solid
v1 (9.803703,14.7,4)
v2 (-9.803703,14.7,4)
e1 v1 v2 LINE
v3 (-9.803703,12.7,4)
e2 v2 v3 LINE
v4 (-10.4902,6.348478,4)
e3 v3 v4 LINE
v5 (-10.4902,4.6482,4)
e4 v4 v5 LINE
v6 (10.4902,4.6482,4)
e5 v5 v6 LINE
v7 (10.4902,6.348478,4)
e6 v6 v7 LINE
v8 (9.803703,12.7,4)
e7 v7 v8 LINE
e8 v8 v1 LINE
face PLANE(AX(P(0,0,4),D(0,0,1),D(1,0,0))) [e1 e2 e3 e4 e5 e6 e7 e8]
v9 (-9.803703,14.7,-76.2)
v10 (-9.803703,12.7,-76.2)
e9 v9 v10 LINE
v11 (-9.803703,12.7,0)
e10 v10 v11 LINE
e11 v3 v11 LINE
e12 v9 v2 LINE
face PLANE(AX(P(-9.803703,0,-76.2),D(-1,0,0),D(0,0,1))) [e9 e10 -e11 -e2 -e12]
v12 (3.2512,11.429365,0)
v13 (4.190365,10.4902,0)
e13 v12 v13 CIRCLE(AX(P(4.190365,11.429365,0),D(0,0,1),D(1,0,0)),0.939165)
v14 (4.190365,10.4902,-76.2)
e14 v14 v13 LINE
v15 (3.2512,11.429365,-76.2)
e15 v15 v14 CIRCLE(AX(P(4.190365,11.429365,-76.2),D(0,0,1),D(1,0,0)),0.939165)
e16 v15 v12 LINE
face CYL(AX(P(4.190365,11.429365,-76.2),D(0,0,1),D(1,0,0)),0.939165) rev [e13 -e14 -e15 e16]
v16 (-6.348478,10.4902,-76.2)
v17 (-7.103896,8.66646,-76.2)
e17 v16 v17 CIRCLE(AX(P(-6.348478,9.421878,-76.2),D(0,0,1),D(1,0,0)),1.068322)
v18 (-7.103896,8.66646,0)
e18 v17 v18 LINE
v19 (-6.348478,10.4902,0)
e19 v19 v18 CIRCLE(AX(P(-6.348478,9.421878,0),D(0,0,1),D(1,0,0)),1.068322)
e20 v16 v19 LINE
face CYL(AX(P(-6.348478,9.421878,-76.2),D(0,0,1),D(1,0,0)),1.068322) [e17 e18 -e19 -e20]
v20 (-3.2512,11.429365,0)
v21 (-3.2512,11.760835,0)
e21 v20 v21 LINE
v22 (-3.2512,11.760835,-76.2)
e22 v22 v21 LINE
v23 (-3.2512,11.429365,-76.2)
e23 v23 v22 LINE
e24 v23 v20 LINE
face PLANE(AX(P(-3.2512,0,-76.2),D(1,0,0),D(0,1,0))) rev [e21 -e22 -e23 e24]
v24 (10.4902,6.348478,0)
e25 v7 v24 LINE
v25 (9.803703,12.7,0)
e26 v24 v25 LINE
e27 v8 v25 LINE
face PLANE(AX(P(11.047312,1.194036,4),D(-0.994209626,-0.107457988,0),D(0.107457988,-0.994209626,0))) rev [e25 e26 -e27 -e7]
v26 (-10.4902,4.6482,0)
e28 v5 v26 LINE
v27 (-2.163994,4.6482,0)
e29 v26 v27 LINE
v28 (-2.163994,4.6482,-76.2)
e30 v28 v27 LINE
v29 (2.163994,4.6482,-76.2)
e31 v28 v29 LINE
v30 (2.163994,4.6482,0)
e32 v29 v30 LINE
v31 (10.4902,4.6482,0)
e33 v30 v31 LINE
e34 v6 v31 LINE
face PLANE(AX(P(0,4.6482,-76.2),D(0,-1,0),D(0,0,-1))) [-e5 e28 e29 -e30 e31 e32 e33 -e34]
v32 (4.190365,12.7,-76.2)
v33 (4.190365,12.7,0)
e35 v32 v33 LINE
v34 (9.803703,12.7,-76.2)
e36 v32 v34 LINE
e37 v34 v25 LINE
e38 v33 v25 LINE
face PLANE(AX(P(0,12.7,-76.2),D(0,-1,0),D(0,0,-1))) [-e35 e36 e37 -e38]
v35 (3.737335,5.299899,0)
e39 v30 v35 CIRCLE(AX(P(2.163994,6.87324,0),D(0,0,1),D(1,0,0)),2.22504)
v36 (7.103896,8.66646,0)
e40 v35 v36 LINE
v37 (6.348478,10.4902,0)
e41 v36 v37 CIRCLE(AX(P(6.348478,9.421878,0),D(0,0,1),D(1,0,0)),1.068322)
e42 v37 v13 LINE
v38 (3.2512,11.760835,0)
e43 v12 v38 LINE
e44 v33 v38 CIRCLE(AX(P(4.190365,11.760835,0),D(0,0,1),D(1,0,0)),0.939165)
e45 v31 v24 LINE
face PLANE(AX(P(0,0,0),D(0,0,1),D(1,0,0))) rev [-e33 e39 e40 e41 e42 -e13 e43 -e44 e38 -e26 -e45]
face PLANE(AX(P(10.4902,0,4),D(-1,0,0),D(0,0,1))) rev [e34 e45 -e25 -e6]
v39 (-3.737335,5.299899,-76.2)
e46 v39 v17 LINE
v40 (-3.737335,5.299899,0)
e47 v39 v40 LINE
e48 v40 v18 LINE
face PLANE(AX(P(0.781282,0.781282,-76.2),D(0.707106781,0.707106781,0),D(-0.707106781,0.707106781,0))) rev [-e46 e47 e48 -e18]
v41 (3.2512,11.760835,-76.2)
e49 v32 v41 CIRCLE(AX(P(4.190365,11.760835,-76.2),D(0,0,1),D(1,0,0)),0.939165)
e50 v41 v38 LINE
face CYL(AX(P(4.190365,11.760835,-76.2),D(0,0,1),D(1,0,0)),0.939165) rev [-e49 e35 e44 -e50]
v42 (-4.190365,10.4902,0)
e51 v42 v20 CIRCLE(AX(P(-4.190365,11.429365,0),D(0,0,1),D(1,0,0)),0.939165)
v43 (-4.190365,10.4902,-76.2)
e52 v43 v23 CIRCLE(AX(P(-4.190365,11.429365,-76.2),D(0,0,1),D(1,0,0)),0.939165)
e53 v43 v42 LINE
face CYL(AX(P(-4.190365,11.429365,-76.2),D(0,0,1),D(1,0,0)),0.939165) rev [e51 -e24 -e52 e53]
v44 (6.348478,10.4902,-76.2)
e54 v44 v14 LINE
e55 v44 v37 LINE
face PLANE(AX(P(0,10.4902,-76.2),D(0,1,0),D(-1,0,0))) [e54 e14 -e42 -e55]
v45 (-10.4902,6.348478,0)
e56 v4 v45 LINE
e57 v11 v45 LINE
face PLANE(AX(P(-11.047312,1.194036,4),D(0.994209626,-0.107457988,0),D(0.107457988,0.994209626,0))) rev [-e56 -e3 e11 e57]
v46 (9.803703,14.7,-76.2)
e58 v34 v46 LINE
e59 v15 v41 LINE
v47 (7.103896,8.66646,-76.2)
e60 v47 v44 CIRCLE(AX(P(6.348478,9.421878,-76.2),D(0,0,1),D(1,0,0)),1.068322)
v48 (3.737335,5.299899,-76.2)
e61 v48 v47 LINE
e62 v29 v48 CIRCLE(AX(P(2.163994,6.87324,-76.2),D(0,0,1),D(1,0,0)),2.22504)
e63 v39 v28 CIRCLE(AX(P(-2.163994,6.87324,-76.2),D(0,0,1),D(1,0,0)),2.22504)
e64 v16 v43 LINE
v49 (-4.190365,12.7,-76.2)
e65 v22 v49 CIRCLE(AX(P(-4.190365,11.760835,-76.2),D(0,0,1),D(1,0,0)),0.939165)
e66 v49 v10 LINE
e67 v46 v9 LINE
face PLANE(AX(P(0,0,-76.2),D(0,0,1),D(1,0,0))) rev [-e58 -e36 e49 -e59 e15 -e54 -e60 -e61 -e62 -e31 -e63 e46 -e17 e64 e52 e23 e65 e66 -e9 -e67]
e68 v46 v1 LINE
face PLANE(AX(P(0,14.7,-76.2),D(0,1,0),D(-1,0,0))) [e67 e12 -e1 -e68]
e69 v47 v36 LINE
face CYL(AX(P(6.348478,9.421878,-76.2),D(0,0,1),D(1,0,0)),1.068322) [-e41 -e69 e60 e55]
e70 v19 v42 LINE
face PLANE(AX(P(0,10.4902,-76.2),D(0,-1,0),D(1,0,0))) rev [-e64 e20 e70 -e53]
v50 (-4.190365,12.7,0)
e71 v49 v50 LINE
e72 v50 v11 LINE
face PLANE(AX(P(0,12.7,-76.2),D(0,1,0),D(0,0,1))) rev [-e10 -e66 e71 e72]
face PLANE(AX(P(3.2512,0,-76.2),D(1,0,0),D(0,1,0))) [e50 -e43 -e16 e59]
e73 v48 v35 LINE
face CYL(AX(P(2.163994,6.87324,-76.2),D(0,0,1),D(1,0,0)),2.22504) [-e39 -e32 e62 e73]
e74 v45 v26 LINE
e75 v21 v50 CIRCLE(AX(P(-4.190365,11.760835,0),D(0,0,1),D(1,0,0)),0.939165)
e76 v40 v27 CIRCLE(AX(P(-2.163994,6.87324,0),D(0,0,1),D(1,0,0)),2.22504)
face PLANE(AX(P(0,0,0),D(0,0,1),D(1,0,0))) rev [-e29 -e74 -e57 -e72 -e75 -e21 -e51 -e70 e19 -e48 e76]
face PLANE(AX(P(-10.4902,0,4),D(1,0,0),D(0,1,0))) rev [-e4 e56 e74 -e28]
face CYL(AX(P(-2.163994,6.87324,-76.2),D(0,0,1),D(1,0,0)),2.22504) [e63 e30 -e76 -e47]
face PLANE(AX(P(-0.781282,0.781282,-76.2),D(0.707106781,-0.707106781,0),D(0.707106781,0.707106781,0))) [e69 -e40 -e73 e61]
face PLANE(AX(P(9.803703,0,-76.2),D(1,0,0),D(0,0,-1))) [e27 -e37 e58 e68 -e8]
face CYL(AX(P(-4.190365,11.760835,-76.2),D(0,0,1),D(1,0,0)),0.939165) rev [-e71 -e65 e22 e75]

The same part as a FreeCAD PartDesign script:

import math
import FreeCAD as App
import Part
import Sketcher
from FreeCAD import Vector


def add_polygon(sketch, points):
    """Adds a closed chain of lines whose ends are joined by coincident constraints."""
    first, n = sketch.GeometryCount, len(points)
    for a, b in zip(points, points[1:] + points[:1]):
        sketch.addGeometry(Part.LineSegment(App.Vector(*a, 0), App.Vector(*b, 0)), False)
    for i in range(n):
        sketch.addConstraint(Sketcher.Constraint("Coincident", first + i, 2, first + (i + 1) % n, 1))

doc = App.newDocument("Part")
body = doc.addObject("PartDesign::Body", "Body")

sketch1 = body.newObject("Sketcher::SketchObject", "Sketch")
sketch1.AttachmentSupport = (doc.getObject("XY_Plane"), [""])
sketch1.MapMode = "FlatFace"
sketch1.addGeometry(Part.LineSegment(Vector(-4.19, 10.49, 0), Vector(-6.35, 10.49, 0)), False)
sketch1.addGeometry(Part.ArcOfCircle(Part.Circle(Vector(-6.35, 9.42, 0), Vector(0, 0, 1), 1.07), math.radians(90), math.radians(225)), False)
sketch1.addGeometry(Part.LineSegment(Vector(-7.1, 8.67, 0), Vector(-3.74, 5.3, 0)), False)
sketch1.addGeometry(Part.ArcOfCircle(Part.Circle(Vector(-2.16, 6.87, 0), Vector(0, 0, 1), 2.23), math.radians(-135), math.radians(-90)), False)
sketch1.addGeometry(Part.LineSegment(Vector(-2.16, 4.65, 0), Vector(2.16, 4.65, 0)), False)
sketch1.addGeometry(Part.ArcOfCircle(Part.Circle(Vector(2.16, 6.87, 0), Vector(0, 0, 1), 2.23), math.radians(-90), math.radians(-45)), False)
sketch1.addGeometry(Part.LineSegment(Vector(3.74, 5.3, 0), Vector(7.1, 8.67, 0)), False)
sketch1.addGeometry(Part.ArcOfCircle(Part.Circle(Vector(6.35, 9.42, 0), Vector(0, 0, 1), 1.07), math.radians(-45), math.radians(90)), False)
sketch1.addGeometry(Part.LineSegment(Vector(6.35, 10.49, 0), Vector(4.19, 10.49, 0)), False)
sketch1.addGeometry(Part.ArcOfCircle(Part.Circle(Vector(4.19, 11.43, 0), Vector(0, 0, 1), 0.94), math.radians(-180), math.radians(-90)), False)
sketch1.addGeometry(Part.LineSegment(Vector(3.25, 11.43, 0), Vector(3.25, 11.76, 0)), False)
sketch1.addGeometry(Part.ArcOfCircle(Part.Circle(Vector(4.19, 11.76, 0), Vector(0, 0, 1), 0.94), math.radians(90), math.radians(180)), False)
sketch1.addGeometry(Part.LineSegment(Vector(4.19, 12.7, 0), Vector(9.8, 12.7, 0)), False)
sketch1.addGeometry(Part.LineSegment(Vector(9.8, 12.7, 0), Vector(9.8, 14.7, 0)), False)
sketch1.addGeometry(Part.LineSegment(Vector(9.8, 14.7, 0), Vector(-9.8, 14.7, 0)), False)
sketch1.addGeometry(Part.LineSegment(Vector(-9.8, 14.7, 0), Vector(-9.8, 12.7, 0)), False)
sketch1.addGeometry(Part.LineSegment(Vector(-9.8, 12.7, 0), Vector(-4.19, 12.7, 0)), False)
sketch1.addGeometry(Part.ArcOfCircle(Part.Circle(Vector(-4.19, 11.76, 0), Vector(0, 0, 1), 0.94), math.radians(0), math.radians(90)), False)
sketch1.addGeometry(Part.LineSegment(Vector(-3.25, 11.76, 0), Vector(-3.25, 11.43, 0)), False)
sketch1.addGeometry(Part.ArcOfCircle(Part.Circle(Vector(-4.19, 11.43, 0), Vector(0, 0, 1), 0.94), math.radians(-90), math.radians(0)), False)
sketch1.addConstraint(Sketcher.Constraint("Tangent", 0, 2, 1, 1))
sketch1.addConstraint(Sketcher.Constraint("Tangent", 1, 2, 2, 1))
sketch1.addConstraint(Sketcher.Constraint("Tangent", 2, 2, 3, 1))
sketch1.addConstraint(Sketcher.Constraint("Tangent", 3, 2, 4, 1))
sketch1.addConstraint(Sketcher.Constraint("Tangent", 4, 2, 5, 1))
sketch1.addConstraint(Sketcher.Constraint("Tangent", 5, 2, 6, 1))
sketch1.addConstraint(Sketcher.Constraint("Tangent", 6, 2, 7, 1))
sketch1.addConstraint(Sketcher.Constraint("Tangent", 7, 2, 8, 1))
sketch1.addConstraint(Sketcher.Constraint("Tangent", 8, 2, 9, 2))
sketch1.addConstraint(Sketcher.Constraint("Tangent", 9, 1, 10, 1))
sketch1.addConstraint(Sketcher.Constraint("Tangent", 10, 2, 11, 2))
sketch1.addConstraint(Sketcher.Constraint("Tangent", 11, 1, 12, 1))
sketch1.addConstraint(Sketcher.Constraint("Coincident", 12, 2, 13, 1))
sketch1.addConstraint(Sketcher.Constraint("Coincident", 13, 2, 14, 1))
sketch1.addConstraint(Sketcher.Constraint("Coincident", 14, 2, 15, 1))
sketch1.addConstraint(Sketcher.Constraint("Coincident", 15, 2, 16, 1))
sketch1.addConstraint(Sketcher.Constraint("Tangent", 16, 2, 17, 2))
sketch1.addConstraint(Sketcher.Constraint("Tangent", 17, 1, 18, 1))
sketch1.addConstraint(Sketcher.Constraint("Tangent", 18, 2, 19, 2))
sketch1.addConstraint(Sketcher.Constraint("Tangent", 19, 1, 0, 1))
sketch1.addConstraint(Sketcher.Constraint("Horizontal", 0))
sketch1.addConstraint(Sketcher.Constraint("Horizontal", 4))
sketch1.addConstraint(Sketcher.Constraint("Horizontal", 8))
sketch1.addConstraint(Sketcher.Constraint("Vertical", 10))
sketch1.addConstraint(Sketcher.Constraint("Horizontal", 12))
sketch1.addConstraint(Sketcher.Constraint("Vertical", 13))
sketch1.addConstraint(Sketcher.Constraint("Horizontal", 14))
sketch1.addConstraint(Sketcher.Constraint("Vertical", 15))
sketch1.addConstraint(Sketcher.Constraint("Horizontal", 16))
sketch1.addConstraint(Sketcher.Constraint("Vertical", 18))
sketch1.addConstraint(Sketcher.Constraint("Equal", 3, 5))
sketch1.addConstraint(Sketcher.Constraint("Equal", 1, 7))
sketch1.addConstraint(Sketcher.Constraint("Equal", 9, 11))
sketch1.addConstraint(Sketcher.Constraint("Equal", 11, 17))
sketch1.addConstraint(Sketcher.Constraint("Equal", 17, 19))
sketch1.addConstraint(Sketcher.Constraint("Symmetric", 1, 3, 7, 3, -2))
sketch1.addConstraint(Sketcher.Constraint("Symmetric", 11, 3, 17, 3, -2))
sketch1.addConstraint(Sketcher.Constraint("Perpendicular", 2, 6))
sketch1.addConstraint(Sketcher.Constraint("Horizontal", 2, 2, 5, 2))
sketch1.addConstraint(Sketcher.Constraint("Equal", 12, 16))
sketch1.addConstraint(Sketcher.Constraint("DistanceY", 13, 1, 13, 2, 2.0))
sketch1.addConstraint(Sketcher.Constraint("DistanceY", -1, 1, 11, 1, 12.7))
sketch1.addConstraint(Sketcher.Constraint("Radius", 1, 1.068322))
sketch1.addConstraint(Sketcher.Constraint("Radius", 3, 2.22504))
sketch1.addConstraint(Sketcher.Constraint("Radius", 9, 0.939165))
sketch1.addConstraint(Sketcher.Constraint("DistanceX", 12, 1, 12, 2, 5.613338))
sketch1.addConstraint(Sketcher.Constraint("DistanceY", 10, 1, 10, 2, 0.33147))
sketch1.addConstraint(Sketcher.Constraint("DistanceY", -1, 1, 2, 2, 5.299899))
sketch1.addConstraint(Sketcher.Constraint("DistanceX", -1, 1, 9, 1, 3.2512))
sketch1.addConstraint(Sketcher.Constraint("DistanceX", 0, 2, 0, 1, 2.158113))
pad1 = body.newObject("PartDesign::Pad", "Pad")
pad1.Profile = sketch1
pad1.Length = 76.2
pad1.Reversed = True

sketch2 = body.newObject("Sketcher::SketchObject", "Sketch001")
sketch2.AttachmentSupport = (doc.getObject("XY_Plane"), [""])
sketch2.MapMode = "FlatFace"
sketch2.AttachmentOffset = App.Placement(Vector(0, 0, 4), App.Rotation())
add_polygon(sketch2, [(-9.8, 12.7), (-10.5, 6.3), (-10.5, 4.6), (10.5, 4.6), (10.5, 6.3), (9.8, 12.7), (9.8, 14.7), (-9.8, 14.7)])
sketch2.addConstraint(Sketcher.Constraint("Vertical", 1))
sketch2.addConstraint(Sketcher.Constraint("Horizontal", 2))
sketch2.addConstraint(Sketcher.Constraint("Vertical", 3))
sketch2.addConstraint(Sketcher.Constraint("Vertical", 5))
sketch2.addConstraint(Sketcher.Constraint("Horizontal", 6))
sketch2.addConstraint(Sketcher.Constraint("Vertical", 7))
sketch2.addConstraint(Sketcher.Constraint("Symmetric", 0, 2, 3, 2, -2))
sketch2.addConstraint(Sketcher.Constraint("Symmetric", 4, 2, 7, 2, -2))
sketch2.addConstraint(Sketcher.Constraint("DistanceY", 5, 1, 5, 2, 2.0))
sketch2.addConstraint(Sketcher.Constraint("DistanceY", -1, 1, 4, 2, 12.7))
sketch2.addConstraint(Sketcher.Constraint("DistanceX", 2, 1, 2, 2, 20.9804))
sketch2.addConstraint(Sketcher.Constraint("DistanceY", 1, 2, 1, 1, 1.700278))
sketch2.addConstraint(Sketcher.Constraint("DistanceY", -1, 1, 1, 2, 4.6482))
sketch2.addConstraint(Sketcher.Constraint("DistanceX", 6, 2, 6, 1, 19.607406))
pad2 = body.newObject("PartDesign::Pad", "Pad001")
pad2.Profile = sketch2
pad2.Length = 4
pad2.Reversed = True

doc.recompute()
